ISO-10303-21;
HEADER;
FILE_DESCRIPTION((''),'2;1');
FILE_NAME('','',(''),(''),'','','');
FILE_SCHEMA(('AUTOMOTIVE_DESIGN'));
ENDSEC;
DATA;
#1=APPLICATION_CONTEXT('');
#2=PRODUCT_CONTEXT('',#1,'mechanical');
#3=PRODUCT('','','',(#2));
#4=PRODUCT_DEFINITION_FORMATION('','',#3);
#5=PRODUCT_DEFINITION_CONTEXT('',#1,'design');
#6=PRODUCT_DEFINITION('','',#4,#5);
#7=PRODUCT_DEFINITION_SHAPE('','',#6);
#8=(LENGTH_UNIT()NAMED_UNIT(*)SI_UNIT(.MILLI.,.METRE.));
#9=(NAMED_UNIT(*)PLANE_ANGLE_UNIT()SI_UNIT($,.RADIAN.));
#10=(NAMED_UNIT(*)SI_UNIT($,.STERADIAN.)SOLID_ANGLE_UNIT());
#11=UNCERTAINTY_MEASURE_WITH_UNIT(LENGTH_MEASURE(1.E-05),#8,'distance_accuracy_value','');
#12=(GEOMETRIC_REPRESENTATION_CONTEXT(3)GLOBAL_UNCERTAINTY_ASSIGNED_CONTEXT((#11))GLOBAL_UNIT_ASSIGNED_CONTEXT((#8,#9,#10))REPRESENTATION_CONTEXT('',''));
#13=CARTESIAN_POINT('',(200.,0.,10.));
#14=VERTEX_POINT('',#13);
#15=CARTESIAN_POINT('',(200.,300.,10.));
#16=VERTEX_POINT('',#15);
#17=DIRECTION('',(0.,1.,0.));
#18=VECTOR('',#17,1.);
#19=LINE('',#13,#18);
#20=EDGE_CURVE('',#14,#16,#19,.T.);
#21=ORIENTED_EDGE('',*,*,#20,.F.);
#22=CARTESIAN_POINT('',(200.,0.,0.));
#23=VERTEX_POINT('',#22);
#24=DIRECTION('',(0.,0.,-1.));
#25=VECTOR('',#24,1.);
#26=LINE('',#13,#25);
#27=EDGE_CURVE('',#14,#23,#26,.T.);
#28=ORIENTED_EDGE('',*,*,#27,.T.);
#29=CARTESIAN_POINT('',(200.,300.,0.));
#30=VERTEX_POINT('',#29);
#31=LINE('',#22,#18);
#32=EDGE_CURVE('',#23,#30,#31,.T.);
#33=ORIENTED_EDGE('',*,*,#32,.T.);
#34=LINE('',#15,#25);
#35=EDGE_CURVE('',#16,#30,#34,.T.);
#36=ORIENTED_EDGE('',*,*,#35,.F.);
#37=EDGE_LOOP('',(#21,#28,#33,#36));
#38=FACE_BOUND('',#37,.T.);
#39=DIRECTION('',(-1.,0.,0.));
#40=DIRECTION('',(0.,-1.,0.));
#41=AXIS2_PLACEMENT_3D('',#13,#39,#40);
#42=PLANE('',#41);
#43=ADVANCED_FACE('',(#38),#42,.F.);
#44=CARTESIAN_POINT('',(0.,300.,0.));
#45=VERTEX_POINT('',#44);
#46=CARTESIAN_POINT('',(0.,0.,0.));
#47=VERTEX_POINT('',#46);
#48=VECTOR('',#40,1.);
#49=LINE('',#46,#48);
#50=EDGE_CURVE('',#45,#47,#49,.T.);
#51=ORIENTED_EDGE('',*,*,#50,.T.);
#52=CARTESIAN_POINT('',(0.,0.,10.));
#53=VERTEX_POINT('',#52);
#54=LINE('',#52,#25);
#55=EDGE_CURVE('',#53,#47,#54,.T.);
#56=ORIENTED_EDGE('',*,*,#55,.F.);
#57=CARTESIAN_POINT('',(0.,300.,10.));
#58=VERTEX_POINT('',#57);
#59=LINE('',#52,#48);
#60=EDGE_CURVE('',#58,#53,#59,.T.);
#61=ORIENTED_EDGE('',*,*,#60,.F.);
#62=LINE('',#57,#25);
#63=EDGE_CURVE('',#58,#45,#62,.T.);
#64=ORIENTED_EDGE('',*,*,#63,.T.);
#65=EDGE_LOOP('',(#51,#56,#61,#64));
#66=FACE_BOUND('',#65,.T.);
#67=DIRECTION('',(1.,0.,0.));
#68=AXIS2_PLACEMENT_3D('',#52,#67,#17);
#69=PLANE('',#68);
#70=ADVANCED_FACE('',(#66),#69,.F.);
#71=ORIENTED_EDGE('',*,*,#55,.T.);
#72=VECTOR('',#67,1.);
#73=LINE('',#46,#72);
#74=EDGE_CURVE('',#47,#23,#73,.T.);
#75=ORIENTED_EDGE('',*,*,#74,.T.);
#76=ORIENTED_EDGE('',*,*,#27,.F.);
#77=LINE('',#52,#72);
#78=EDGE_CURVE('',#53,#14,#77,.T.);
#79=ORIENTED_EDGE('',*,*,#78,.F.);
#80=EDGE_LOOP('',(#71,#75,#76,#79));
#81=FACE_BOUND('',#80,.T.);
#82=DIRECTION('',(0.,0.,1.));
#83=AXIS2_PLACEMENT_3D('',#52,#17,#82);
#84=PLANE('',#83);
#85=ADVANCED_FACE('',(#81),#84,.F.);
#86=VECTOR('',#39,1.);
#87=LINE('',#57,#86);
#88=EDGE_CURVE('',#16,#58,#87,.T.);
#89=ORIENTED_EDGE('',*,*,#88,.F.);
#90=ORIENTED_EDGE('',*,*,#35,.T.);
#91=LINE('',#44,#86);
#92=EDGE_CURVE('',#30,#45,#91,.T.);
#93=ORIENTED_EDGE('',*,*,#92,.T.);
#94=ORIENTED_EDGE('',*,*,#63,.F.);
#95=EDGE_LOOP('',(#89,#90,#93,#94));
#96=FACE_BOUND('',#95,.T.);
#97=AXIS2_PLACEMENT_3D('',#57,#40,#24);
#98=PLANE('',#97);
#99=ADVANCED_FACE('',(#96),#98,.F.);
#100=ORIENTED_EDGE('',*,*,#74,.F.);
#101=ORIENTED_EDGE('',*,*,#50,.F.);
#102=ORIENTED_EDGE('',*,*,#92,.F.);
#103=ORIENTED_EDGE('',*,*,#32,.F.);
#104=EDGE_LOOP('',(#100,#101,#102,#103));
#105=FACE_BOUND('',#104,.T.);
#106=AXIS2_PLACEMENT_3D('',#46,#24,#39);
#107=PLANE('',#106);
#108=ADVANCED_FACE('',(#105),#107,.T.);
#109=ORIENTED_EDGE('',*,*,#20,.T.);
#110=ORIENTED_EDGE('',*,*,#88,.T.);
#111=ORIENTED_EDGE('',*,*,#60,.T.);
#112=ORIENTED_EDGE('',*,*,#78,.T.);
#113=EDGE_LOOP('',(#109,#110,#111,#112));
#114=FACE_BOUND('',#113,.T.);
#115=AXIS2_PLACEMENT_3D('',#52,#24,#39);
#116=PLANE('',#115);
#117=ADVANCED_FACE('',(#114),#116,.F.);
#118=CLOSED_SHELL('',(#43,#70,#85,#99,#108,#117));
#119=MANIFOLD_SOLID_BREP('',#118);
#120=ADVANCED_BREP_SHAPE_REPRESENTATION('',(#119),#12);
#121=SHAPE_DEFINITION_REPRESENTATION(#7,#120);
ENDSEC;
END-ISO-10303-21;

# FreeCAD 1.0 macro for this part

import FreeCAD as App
import Part
import Sketcher

doc = App.newDocument("Part")
body = doc.addObject("PartDesign::Body", "Body")

sketch1 = doc.addObject("Sketcher::SketchObject", "Sketch")
body.addObject(sketch1)
sketch1.AttachmentSupport = (doc.XY_Plane, [""])
sketch1.MapMode = "FlatFace"
sketch1.addGeometry([
    Part.LineSegment(App.Vector(0, 300, 0), App.Vector(0, 0, 0)),
    Part.LineSegment(App.Vector(0, 0, 0), App.Vector(200, 0, 0)),
    Part.LineSegment(App.Vector(200, 0, 0), App.Vector(200, 300, 0)),
    Part.LineSegment(App.Vector(200, 300, 0), App.Vector(0, 300, 0)),
], False)
sketch1.addConstraint([
    Sketcher.Constraint("Coincident", 0, 2, 1, 1),
    Sketcher.Constraint("Coincident", 1, 2, 2, 1),
    Sketcher.Constraint("Coincident", 2, 2, 3, 1),
    Sketcher.Constraint("Coincident", 3, 2, 0, 1),
    Sketcher.Constraint("Vertical", 0),
    Sketcher.Constraint("Horizontal", 1),
    Sketcher.Constraint("Vertical", 2),
    Sketcher.Constraint("Horizontal", 3),
    Sketcher.Constraint("Coincident", 0, 2, -1, 1),
    Sketcher.Constraint("DistanceX", 1, 1, 1, 2, 200.0),
    Sketcher.Constraint("DistanceY", 0, 2, 0, 1, 300.0),
])
pad1 = doc.addObject("PartDesign::Pad", "Pad")
body.addObject(pad1)
pad1.Profile = sketch1
pad1.Length = 10

doc.recompute()
